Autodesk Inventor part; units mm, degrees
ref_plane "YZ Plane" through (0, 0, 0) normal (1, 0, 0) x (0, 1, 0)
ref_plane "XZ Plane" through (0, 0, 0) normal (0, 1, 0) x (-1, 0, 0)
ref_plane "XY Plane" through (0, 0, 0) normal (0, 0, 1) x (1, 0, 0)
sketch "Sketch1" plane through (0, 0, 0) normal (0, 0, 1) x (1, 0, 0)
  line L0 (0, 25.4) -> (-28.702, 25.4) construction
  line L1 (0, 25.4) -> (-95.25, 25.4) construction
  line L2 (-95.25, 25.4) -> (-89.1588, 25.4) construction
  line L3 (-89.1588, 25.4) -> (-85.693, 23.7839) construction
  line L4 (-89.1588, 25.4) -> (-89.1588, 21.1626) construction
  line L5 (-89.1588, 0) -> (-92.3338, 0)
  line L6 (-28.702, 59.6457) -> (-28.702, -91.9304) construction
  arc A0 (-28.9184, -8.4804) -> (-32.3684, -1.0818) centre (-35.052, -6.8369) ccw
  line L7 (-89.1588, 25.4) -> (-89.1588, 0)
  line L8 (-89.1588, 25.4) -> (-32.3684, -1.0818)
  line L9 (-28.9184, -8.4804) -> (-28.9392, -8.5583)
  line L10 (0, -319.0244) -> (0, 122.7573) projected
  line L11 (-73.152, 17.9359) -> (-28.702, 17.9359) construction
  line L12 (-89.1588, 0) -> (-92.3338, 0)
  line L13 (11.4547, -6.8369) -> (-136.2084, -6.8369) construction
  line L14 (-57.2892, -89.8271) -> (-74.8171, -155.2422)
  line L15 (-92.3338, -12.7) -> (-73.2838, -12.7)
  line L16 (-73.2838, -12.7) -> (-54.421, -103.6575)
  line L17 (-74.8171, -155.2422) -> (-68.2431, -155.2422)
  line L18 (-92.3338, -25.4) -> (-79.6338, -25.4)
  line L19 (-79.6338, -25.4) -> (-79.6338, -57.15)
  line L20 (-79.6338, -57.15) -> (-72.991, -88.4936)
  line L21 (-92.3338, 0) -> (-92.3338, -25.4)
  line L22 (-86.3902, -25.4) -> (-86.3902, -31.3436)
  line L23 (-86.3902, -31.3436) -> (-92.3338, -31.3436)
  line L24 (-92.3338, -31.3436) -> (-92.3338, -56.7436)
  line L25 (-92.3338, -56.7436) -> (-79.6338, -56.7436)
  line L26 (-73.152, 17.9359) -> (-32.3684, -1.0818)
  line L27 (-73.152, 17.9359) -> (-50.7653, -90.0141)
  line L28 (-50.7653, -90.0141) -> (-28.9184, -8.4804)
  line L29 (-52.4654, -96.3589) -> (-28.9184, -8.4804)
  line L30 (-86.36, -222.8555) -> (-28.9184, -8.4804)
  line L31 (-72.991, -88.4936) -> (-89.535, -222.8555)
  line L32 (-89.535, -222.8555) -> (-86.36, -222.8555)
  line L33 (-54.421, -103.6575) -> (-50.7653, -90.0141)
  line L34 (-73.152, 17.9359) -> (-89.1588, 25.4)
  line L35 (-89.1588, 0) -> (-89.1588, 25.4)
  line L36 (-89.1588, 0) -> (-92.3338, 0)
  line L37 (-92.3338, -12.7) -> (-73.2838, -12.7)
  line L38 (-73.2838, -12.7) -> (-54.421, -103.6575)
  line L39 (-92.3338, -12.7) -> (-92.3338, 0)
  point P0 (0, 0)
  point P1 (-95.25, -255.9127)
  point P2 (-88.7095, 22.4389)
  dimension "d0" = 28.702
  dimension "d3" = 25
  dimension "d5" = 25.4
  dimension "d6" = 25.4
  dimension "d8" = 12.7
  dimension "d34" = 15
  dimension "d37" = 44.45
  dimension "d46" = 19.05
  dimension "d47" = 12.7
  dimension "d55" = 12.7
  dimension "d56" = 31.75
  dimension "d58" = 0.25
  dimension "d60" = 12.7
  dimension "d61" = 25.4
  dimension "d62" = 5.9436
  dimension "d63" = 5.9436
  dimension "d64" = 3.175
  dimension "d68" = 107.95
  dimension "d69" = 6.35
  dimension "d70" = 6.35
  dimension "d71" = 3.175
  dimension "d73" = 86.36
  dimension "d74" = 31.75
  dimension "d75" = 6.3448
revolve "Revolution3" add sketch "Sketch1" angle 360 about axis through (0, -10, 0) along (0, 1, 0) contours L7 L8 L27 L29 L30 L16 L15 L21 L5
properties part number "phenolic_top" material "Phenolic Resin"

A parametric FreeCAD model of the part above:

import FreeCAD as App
import Part
import Sketcher

V = App.Vector
Q = App.Units.Quantity


def add_polygon(sketch, points):
    """Adds a closed chain of lines whose ends are joined by coincident constraints."""
    first, n = sketch.GeometryCount, len(points)
    for a, b in zip(points, points[1:] + points[:1]):
        sketch.addGeometry(Part.LineSegment(App.Vector(*a, 0), App.Vector(*b, 0)), False)
    for i in range(n):
        sketch.addConstraint(Sketcher.Constraint("Coincident", first + i, 2, first + (i + 1) % n, 1))

doc = App.newDocument("Part")
body = doc.addObject("PartDesign::Body", "Body")

# Sketch on XY plane
sketch1 = doc.addObject("Sketcher::SketchObject", "Sketch")
body.addObject(sketch1)
sketch1.AttachmentSupport = (doc.XY_Plane, [""])
sketch1.MapMode = "FlatFace"
add_polygon(sketch1, [(-89.1588, 25.4), (-89.1588, 0), (-92.3338, 0), (-92.3338, -12.7), (-73.2838, -12.7), (-54.421011, -103.657497), (-52.4654, -96.3589), (-50.7653, -90.0141), (-73.151998, 17.935905)])  # lines 0-8
sketch1.addConstraint([
    Sketcher.Constraint("Vertical", 0),
    Sketcher.Constraint("Horizontal", 1),
    Sketcher.Constraint("Vertical", 2),
    Sketcher.Constraint("Horizontal", 3),
    Sketcher.Constraint("PointOnObject", 0, 2, -1),
    Sketcher.Constraint("DistanceY", 0, 2, 0, 1, Q("1 in")),
    Sketcher.Constraint("DistanceY", 2, 2, 2, 1, Q("0.5 in")),
    Sketcher.Constraint("DistanceX", 3, 1, 3, 2, Q("0.75 in")),
    Sketcher.Constraint("DistanceX", 1, 2, 1, 1, Q("0.125 in")),
    Sketcher.Constraint("DistanceY", 6, 2, 7, 2, Q("4.25 in")),
    Sketcher.Constraint("DistanceY", 5, 2, 6, 2, Q("0.2498 in")),
    Sketcher.Constraint("DistanceX", 7, 2, -1, 1, Q("2.88 in")),
    Sketcher.Constraint("DistanceY", 4, 2, -1, 1, Q("4.081 in")),
    Sketcher.Constraint("DistanceX", 4, 2, 5, 2, Q("0.077 in")),
    Sketcher.Constraint("Distance", 4, Q("3.6572 in")),
    Sketcher.Constraint("Distance", 6, Q("0.2586 in")),
    Sketcher.Constraint("DistanceX", 0, 2, -1, 1, Q("3.5102 in")),
    Sketcher.Constraint("Distance", 5, Q("7.556 mm")),
])
revolution = doc.addObject("PartDesign::Revolution", "Revolution")
body.addObject(revolution)
revolution.Profile = sketch1
revolution.ReferenceAxis = (sketch1, ["V_Axis"])
revolution.Angle = 360

doc.recompute()
